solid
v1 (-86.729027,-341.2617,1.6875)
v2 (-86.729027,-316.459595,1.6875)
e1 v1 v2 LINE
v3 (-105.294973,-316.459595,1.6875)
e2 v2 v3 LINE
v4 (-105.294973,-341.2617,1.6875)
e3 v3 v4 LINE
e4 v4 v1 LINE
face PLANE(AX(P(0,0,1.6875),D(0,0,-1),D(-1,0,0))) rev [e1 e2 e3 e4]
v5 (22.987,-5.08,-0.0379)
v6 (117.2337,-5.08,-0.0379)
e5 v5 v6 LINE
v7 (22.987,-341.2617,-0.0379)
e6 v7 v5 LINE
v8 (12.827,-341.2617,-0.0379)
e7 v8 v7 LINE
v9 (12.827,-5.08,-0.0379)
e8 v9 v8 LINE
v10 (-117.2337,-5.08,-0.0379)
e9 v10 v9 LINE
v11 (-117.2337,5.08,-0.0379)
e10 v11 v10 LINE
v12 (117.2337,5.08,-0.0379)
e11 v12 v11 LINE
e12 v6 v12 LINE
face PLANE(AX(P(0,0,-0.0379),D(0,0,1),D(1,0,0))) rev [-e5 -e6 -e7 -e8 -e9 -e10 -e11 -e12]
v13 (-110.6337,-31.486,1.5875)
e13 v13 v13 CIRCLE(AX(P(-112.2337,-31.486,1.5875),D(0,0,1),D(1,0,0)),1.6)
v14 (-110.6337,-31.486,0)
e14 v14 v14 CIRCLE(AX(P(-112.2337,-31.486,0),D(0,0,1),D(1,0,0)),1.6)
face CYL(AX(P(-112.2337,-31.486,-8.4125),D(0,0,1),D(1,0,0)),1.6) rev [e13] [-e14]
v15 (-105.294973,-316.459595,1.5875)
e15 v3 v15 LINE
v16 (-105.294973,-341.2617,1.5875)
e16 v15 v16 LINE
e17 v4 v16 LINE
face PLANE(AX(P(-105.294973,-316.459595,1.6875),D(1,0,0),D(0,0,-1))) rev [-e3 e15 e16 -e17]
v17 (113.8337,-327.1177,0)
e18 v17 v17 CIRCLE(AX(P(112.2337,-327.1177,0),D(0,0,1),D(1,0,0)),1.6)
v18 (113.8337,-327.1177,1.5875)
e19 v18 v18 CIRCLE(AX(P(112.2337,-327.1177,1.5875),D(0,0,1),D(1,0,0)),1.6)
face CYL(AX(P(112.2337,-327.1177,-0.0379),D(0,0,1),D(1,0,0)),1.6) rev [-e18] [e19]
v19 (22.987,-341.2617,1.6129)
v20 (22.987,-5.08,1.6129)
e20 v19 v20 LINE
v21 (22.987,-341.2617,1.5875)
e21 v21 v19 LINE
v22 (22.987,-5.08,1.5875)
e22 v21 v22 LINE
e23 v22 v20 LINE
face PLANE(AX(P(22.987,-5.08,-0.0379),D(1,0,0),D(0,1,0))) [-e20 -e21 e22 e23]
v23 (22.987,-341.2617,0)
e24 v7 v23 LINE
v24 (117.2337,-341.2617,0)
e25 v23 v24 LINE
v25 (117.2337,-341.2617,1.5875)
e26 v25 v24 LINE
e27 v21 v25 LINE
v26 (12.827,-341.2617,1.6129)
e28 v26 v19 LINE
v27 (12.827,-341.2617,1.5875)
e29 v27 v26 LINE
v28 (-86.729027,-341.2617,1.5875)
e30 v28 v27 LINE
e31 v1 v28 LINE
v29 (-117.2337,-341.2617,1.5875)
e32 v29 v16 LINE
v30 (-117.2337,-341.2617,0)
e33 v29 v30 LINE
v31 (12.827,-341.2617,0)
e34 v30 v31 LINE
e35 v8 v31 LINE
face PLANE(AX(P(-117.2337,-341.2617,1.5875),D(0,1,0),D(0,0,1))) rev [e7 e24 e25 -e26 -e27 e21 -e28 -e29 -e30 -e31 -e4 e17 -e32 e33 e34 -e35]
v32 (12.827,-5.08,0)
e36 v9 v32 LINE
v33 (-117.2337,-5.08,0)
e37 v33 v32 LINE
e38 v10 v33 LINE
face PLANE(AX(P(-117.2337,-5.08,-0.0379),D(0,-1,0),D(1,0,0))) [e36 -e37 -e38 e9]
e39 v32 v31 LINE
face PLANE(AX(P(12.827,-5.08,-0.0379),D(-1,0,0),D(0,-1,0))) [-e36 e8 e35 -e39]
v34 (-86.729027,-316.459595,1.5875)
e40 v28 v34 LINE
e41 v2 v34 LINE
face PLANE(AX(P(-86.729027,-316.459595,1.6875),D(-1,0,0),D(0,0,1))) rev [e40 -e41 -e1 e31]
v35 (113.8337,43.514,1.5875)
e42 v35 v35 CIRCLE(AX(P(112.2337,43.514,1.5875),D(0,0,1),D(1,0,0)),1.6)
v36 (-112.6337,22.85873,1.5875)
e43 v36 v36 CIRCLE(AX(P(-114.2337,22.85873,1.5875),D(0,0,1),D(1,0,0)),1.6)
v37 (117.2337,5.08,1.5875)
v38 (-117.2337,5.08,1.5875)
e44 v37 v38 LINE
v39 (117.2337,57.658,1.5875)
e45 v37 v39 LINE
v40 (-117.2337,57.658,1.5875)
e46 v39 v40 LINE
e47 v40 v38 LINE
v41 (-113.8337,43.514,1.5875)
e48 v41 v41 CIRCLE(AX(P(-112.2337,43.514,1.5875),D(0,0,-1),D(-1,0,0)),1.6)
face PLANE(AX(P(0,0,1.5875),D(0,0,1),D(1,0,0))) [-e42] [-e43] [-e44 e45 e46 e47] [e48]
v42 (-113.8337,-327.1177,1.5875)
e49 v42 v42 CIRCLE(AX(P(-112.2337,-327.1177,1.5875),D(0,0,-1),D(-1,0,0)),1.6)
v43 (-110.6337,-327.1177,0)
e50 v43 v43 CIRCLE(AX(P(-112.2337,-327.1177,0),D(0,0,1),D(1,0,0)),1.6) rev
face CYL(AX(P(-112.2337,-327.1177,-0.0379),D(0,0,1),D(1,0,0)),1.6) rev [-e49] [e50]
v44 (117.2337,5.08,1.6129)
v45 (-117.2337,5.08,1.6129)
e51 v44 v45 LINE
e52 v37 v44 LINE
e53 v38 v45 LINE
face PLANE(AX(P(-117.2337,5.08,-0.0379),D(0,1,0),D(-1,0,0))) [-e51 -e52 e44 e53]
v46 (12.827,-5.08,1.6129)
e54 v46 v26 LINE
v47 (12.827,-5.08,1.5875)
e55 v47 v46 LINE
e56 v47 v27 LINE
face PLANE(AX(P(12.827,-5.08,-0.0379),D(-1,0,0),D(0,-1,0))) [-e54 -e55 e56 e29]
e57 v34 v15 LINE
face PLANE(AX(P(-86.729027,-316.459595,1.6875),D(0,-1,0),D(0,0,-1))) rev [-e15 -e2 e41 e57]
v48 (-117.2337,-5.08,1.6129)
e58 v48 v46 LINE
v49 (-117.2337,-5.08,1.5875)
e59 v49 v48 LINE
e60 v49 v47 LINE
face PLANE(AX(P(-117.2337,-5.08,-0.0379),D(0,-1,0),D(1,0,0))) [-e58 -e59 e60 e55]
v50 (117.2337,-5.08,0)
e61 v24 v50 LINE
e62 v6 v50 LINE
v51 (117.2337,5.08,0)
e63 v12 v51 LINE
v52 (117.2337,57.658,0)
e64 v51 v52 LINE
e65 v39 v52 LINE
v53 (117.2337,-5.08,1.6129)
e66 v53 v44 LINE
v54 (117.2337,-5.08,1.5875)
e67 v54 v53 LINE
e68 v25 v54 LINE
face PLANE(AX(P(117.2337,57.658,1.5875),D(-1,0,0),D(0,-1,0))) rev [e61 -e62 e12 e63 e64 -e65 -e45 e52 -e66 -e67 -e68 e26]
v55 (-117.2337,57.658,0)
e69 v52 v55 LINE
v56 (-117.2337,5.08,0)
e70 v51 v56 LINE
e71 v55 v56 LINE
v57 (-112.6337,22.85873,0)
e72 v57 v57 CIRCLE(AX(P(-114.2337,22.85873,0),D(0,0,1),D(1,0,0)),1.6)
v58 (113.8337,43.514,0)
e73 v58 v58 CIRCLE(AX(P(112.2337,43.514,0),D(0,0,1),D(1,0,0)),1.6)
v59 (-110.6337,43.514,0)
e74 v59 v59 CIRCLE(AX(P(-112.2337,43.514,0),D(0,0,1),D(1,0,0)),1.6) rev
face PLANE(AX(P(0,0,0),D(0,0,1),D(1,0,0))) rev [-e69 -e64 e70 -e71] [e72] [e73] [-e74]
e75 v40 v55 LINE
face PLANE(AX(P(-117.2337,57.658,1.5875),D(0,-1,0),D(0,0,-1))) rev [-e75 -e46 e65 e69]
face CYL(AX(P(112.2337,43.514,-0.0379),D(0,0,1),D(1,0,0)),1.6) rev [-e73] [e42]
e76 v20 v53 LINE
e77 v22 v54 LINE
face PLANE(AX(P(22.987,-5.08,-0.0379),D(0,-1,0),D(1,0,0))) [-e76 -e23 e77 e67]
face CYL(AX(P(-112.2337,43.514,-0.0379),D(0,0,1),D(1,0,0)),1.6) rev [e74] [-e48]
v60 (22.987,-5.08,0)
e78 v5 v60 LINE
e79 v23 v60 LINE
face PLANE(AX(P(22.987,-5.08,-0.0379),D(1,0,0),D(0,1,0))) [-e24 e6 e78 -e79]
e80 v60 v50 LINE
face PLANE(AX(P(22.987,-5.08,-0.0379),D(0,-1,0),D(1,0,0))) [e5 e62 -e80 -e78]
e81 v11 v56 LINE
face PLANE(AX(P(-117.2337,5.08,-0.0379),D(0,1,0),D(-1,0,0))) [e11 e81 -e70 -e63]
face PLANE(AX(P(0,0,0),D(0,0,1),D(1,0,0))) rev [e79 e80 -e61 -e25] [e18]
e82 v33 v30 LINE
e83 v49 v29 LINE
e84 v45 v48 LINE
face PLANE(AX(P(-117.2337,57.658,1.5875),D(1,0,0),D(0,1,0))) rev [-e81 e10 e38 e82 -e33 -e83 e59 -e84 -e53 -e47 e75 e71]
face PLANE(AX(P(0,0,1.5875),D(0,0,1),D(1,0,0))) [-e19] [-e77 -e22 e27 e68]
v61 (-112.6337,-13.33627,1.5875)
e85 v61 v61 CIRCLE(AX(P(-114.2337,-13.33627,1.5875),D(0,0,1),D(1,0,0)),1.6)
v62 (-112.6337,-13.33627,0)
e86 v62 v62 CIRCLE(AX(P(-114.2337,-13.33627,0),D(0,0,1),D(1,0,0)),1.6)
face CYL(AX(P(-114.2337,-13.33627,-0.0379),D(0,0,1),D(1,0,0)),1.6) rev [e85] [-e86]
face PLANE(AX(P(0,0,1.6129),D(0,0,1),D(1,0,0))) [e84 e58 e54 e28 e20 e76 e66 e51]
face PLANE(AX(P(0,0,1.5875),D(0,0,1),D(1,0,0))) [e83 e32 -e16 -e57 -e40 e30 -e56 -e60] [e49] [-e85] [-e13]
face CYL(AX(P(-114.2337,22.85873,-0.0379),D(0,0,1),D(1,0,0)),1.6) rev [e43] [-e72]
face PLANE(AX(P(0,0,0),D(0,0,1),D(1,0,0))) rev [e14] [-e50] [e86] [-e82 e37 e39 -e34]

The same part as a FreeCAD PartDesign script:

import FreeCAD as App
import Part
import Sketcher

V = App.Vector
Q = App.Units.Quantity


def add_polygon(sketch, points):
    """Adds a closed chain of lines whose ends are joined by coincident constraints."""
    first, n = sketch.GeometryCount, len(points)
    for a, b in zip(points, points[1:] + points[:1]):
        sketch.addGeometry(Part.LineSegment(App.Vector(*a, 0), App.Vector(*b, 0)), False)
    for i in range(n):
        sketch.addConstraint(Sketcher.Constraint("Coincident", first + i, 2, first + (i + 1) % n, 1))

doc = App.newDocument("Part")
body = doc.addObject("PartDesign::Body", "Body")

# Sketch on XY plane
sketch1 = body.newObject("Sketcher::SketchObject", "Sketch")
sketch1.AttachmentSupport = (doc.getObject("XY_Plane"), [""])
sketch1.MapMode = "FlatFace"
add_polygon(sketch1, [(-117, 58), (-117, -341), (117, -341), (117, 58)])  # lines 0-3
sketch1.addConstraint([
    Sketcher.Constraint("Vertical", 0),
    Sketcher.Constraint("Horizontal", 1),
    Sketcher.Constraint("Vertical", 2),
    Sketcher.Constraint("Horizontal", 3),
    Sketcher.Constraint("DistanceX", 1, 1, 1, 2, Q("9.231 in")),
    Sketcher.Constraint("DistanceY", -1, 1, 2, 2, Q("2.27 in")),
    Sketcher.Constraint("DistanceY", 0, 2, 0, 1, Q("15.7055 in")),
    Sketcher.Constraint("DistanceX", 0, 2, -1, 1, Q("4.6155 in")),
])
pad1 = body.newObject("PartDesign::Pad", "Pad")
pad1.Profile = sketch1
pad1.Length = Q("0.0625 in")

# Sketch on XY plane
sketch2 = body.newObject("Sketcher::SketchObject", "Sketch001")
sketch2.AttachmentSupport = (doc.getObject("XY_Plane"), [""])
sketch2.MapMode = "FlatFace"
sketch2.AttachmentOffset = App.Placement(V(0, 0, 0.0625 * 25.4), App.Rotation())
add_polygon(sketch2, [(117, 5), (-117, 5), (-117, -5), (13, -5), (13, -341), (23, -341), (23, -5), (117, -5)])  # lines 0-7
sketch2.addConstraint([
    Sketcher.Constraint("Horizontal", 0),
    Sketcher.Constraint("Vertical", 1),
    Sketcher.Constraint("Horizontal", 2),
    Sketcher.Constraint("Vertical", 3),
    Sketcher.Constraint("Horizontal", 4),
    Sketcher.Constraint("Vertical", 5),
    Sketcher.Constraint("Horizontal", 6),
    Sketcher.Constraint("Vertical", 7),
    Sketcher.Constraint("Symmetric", 0, 2, 6, 2, -1, 1),
    Sketcher.Constraint("Horizontal", 2, 2, 5, 2),
    Sketcher.Constraint("Equal", 4, 1),
    Sketcher.Constraint("DistanceX", 4, 1, 4, 2, Q("0.4 in")),
    Sketcher.Constraint("DistanceX", 0, 2, 0, 1, Q("9.231 in")),
    Sketcher.Constraint("DistanceX", 2, 1, 2, 2, Q("5.1205 in")),
    Sketcher.Constraint("DistanceY", 3, 2, 3, 1, Q("13.2355 in")),
])
pad2 = body.newObject("PartDesign::Pad", "Pad001")
pad2.Profile = sketch2
pad2.Type = "TwoLengths"
pad2.Length = Q("0.001 in")
pad2.Length2 = 1.6254

# Sketch on XY plane
sketch3 = body.newObject("Sketcher::SketchObject", "Sketch002")
sketch3.AttachmentSupport = (doc.getObject("XY_Plane"), [""])
sketch3.MapMode = "FlatFace"
sketch3.AttachmentOffset = App.Placement(V(0, 0, 0.0625 * 25.4), App.Rotation())
sketch3.addGeometry([
    Part.Circle(V(112.2, 43.5, 0), V(0, 0, 1), 1.6),
    Part.Circle(V(112.2, -327.1, 0), V(0, 0, 1), 1.6),
], False)
sketch3.addConstraint([
    Sketcher.Constraint("Equal", 0, 1),
    Sketcher.Constraint("Vertical", 0, 3, 1, 3),
    Sketcher.Constraint("Diameter", 0, 3.2),
    Sketcher.Constraint("DistanceX", -1, 1, 0, 3, 112.2337),
    Sketcher.Constraint("DistanceY", -1, 1, 0, 3, 43.514),
    Sketcher.Constraint("DistanceY", 1, 3, -1, 1, 327.1177),
])
pocket1 = body.newObject("PartDesign::Pocket", "Pocket")
pocket1.Profile = sketch3
pocket1.Type = "ThroughAll"
doc.recompute()

mirrored = body.newObject("PartDesign::Mirrored", "Mirrored")
mirrored.Originals = [pocket1]
mirrored.MirrorPlane = (doc.getObject("YZ_Plane"), [""])
body.Tip = mirrored

# Sketch on XY plane
sketch4 = body.newObject("Sketcher::SketchObject", "Sketch003")
sketch4.AttachmentSupport = (doc.getObject("XY_Plane"), [""])
sketch4.MapMode = "FlatFace"
sketch4.AttachmentOffset = App.Placement(V(0, 0, 0.0625 * 25.4), App.Rotation())
add_polygon(sketch4, [(-105, -316), (-105, -341), (-87, -341), (-87, -316)])  # lines 0-3
sketch4.addConstraint([
    Sketcher.Constraint("Vertical", 0),
    Sketcher.Constraint("Horizontal", 1),
    Sketcher.Constraint("Vertical", 2),
    Sketcher.Constraint("Horizontal", 3),
    Sketcher.Constraint("DistanceY", 0, 2, -1, 1, Q("13.4355 in")),
    Sketcher.Constraint("DistanceX", 1, 1, 1, 2, 18.565946),
    Sketcher.Constraint("DistanceY", 0, 2, 0, 1, 24.802105),
    Sketcher.Constraint("DistanceX", 0, 2, -1, 1, 105.294973),
])
pad3 = body.newObject("PartDesign::Pad", "Pad002")
pad3.Profile = sketch4
pad3.Length = 0.1

# Sketch on XY plane
sketch5 = body.newObject("Sketcher::SketchObject", "Sketch004")
sketch5.AttachmentSupport = (doc.getObject("XY_Plane"), [""])
sketch5.MapMode = "FlatFace"
sketch5.AttachmentOffset = App.Placement(V(0, 0, 0.0625 * 25.4), App.Rotation())
sketch5.addGeometry([
    Part.Circle(V(-114.2, 22.9, 0), V(0, 0, 1), 1.6),
    Part.Circle(V(-114.2, -13.3, 0), V(0, 0, 1), 1.6),
], False)
sketch5.addConstraint([
    Sketcher.Constraint("Equal", 0, 1),
    Sketcher.Constraint("Vertical", 0, 3, 1, 3),
    Sketcher.Constraint("Diameter", 0, 3.2),
    Sketcher.Constraint("DistanceY", 1, 3, 0, 3, Q("1.425 in")),
    Sketcher.Constraint("DistanceX", 0, 3, -1, 1, 114.2337),
    Sketcher.Constraint("DistanceY", -1, 1, 0, 3, 22.85873),
])
pocket2 = body.newObject("PartDesign::Pocket", "Pocket001")
pocket2.Profile = sketch5
pocket2.Type = "ThroughAll"

# Sketch on XY plane
sketch6 = body.newObject("Sketcher::SketchObject", "Sketch005")
sketch6.AttachmentSupport = (doc.getObject("XY_Plane"), [""])
sketch6.MapMode = "FlatFace"
sketch6.AttachmentOffset = App.Placement(V(0, 0, 0.0625 * 25.4), App.Rotation())
sketch6.addGeometry(Part.Circle(V(-112.2, -31.5, 0), V(0, 0, 1), 1.6), False)
sketch6.addConstraint([
    Sketcher.Constraint("Diameter", 0, 3.2),
    Sketcher.Constraint("DistanceX", 0, 3, -1, 1, 112.2337),
    Sketcher.Constraint("DistanceY", 0, 3, -1, 1, 31.486),
])
pocket3 = body.newObject("PartDesign::Pocket", "Pocket002")
pocket3.Profile = sketch6
pocket3.Length = 10

doc.recompute()
